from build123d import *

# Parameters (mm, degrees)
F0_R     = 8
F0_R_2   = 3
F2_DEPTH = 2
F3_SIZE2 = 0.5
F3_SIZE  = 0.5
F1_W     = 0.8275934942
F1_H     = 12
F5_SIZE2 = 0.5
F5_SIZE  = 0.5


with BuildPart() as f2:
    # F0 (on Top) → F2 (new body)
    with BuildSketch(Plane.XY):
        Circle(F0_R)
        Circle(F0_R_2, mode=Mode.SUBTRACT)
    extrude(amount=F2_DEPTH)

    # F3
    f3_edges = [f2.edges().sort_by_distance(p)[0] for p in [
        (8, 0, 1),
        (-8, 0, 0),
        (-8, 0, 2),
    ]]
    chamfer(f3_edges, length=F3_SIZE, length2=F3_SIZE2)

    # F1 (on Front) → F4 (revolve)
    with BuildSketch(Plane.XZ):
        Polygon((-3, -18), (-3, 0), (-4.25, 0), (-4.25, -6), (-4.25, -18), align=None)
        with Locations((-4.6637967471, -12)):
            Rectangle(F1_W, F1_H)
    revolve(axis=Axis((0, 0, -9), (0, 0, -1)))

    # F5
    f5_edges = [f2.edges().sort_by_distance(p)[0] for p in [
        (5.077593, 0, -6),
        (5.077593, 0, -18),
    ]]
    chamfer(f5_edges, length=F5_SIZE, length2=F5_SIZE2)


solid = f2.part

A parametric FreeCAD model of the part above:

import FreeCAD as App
import Part
import Sketcher
from FreeCAD import Vector


def edges_at(feature, points):
    """Names of the edges that pass closest to the given points."""
    edges = feature.Shape.Edges
    near = lambda p: min(range(len(edges)), key=lambda i: edges[i].distToShape(Part.Vertex(*p))[0])
    return sorted({f"Edge{near(p) + 1}" for p in points})

doc = App.newDocument("Part")
body = doc.addObject("PartDesign::Body", "Body")

# Sketch on XY plane
sketch1 = body.newObject("Sketcher::SketchObject", "Sketch")
sketch1.AttachmentSupport = (doc.getObject("XY_Plane"), [""])
sketch1.MapMode = "FlatFace"
sketch1.addGeometry(Part.Circle(Vector(0, 0, 0), Vector(0, 0, 1), 8), False)
sketch1.addGeometry(Part.Circle(Vector(0, 0, 0), Vector(0, 0, 1), 3), False)
sketch1.addConstraint(Sketcher.Constraint("Coincident", 0, 3, -1, 1))
sketch1.addConstraint(Sketcher.Constraint("Coincident", 1, 3, -1, 1))
sketch1.addConstraint(Sketcher.Constraint("Diameter", 0, 16.0))
sketch1.addConstraint(Sketcher.Constraint("Diameter", 1, 6.0))
pad1 = body.newObject("PartDesign::Pad", "Pad")
pad1.Profile = sketch1
pad1.Length = 2
doc.recompute()

chamfer = body.newObject("PartDesign::Chamfer", "Chamfer")
chamfer.Base = (pad1, edges_at(pad1, [(8, 0, 1), (-8, 0, 0), (-8, 0, 2)]))
chamfer.ChamferType = "Two distances"
chamfer.Size = 0.5
chamfer.Size2 = 0.5

# Sketch on XZ plane
sketch2 = body.newObject("Sketcher::SketchObject", "Sketch001")
sketch2.AttachmentSupport = (doc.getObject("XZ_Plane"), [""])
sketch2.MapMode = "FlatFace"
sketch2.addGeometry(Part.LineSegment(Vector(-3, -18, 0), Vector(-3, 0, 0)), False)
sketch2.addGeometry(Part.LineSegment(Vector(-3, 0, 0), Vector(-4.2, 0, 0)), False)
sketch2.addGeometry(Part.LineSegment(Vector(-4.2, 0, 0), Vector(-4.2, -6, 0)), False)
sketch2.addGeometry(Part.LineSegment(Vector(-4.2, -6, 0), Vector(-5.1, -6, 0)), False)
sketch2.addGeometry(Part.LineSegment(Vector(-5.1, -6, 0), Vector(-5.1, -18, 0)), False)
sketch2.addGeometry(Part.LineSegment(Vector(-5.1, -18, 0), Vector(-3, -18, 0)), False)
sketch2.addConstraint(Sketcher.Constraint("Coincident", 0, 2, 1, 1))
sketch2.addConstraint(Sketcher.Constraint("Coincident", 1, 2, 2, 1))
sketch2.addConstraint(Sketcher.Constraint("Coincident", 2, 2, 3, 1))
sketch2.addConstraint(Sketcher.Constraint("Coincident", 3, 2, 4, 1))
sketch2.addConstraint(Sketcher.Constraint("Coincident", 4, 2, 5, 1))
sketch2.addConstraint(Sketcher.Constraint("Coincident", 5, 2, 0, 1))
sketch2.addConstraint(Sketcher.Constraint("Vertical", 0))
sketch2.addConstraint(Sketcher.Constraint("Horizontal", 1))
sketch2.addConstraint(Sketcher.Constraint("Vertical", 2))
sketch2.addConstraint(Sketcher.Constraint("Horizontal", 3))
sketch2.addConstraint(Sketcher.Constraint("Vertical", 4))
sketch2.addConstraint(Sketcher.Constraint("Horizontal", 5))
sketch2.addConstraint(Sketcher.Constraint("PointOnObject", 0, 2, -1))
sketch2.addConstraint(Sketcher.Constraint("DistanceY", 0, 1, 0, 2, 18.0))
sketch2.addConstraint(Sketcher.Constraint("DistanceY", 2, 2, 2, 1, 6.0))
sketch2.addConstraint(Sketcher.Constraint("DistanceX", 0, 2, -1, 1, 3.0))
sketch2.addConstraint(Sketcher.Constraint("DistanceX", 1, 2, 1, 1, 1.25))
sketch2.addConstraint(Sketcher.Constraint("DistanceX", 3, 2, 3, 1, 0.827593))
revolution = body.newObject("PartDesign::Revolution", "Revolution")
revolution.Profile = sketch2
revolution.ReferenceAxis = (sketch2, ["V_Axis"])
revolution.Angle = 360
doc.recompute()

chamfer2 = body.newObject("PartDesign::Chamfer", "Chamfer001")
chamfer2.Base = (revolution, edges_at(revolution, [(5.078, 0, -6), (5.078, 0, -18)]))
chamfer2.ChamferType = "Two distances"
chamfer2.Size = 0.5
chamfer2.Size2 = 0.5

doc.recompute()
